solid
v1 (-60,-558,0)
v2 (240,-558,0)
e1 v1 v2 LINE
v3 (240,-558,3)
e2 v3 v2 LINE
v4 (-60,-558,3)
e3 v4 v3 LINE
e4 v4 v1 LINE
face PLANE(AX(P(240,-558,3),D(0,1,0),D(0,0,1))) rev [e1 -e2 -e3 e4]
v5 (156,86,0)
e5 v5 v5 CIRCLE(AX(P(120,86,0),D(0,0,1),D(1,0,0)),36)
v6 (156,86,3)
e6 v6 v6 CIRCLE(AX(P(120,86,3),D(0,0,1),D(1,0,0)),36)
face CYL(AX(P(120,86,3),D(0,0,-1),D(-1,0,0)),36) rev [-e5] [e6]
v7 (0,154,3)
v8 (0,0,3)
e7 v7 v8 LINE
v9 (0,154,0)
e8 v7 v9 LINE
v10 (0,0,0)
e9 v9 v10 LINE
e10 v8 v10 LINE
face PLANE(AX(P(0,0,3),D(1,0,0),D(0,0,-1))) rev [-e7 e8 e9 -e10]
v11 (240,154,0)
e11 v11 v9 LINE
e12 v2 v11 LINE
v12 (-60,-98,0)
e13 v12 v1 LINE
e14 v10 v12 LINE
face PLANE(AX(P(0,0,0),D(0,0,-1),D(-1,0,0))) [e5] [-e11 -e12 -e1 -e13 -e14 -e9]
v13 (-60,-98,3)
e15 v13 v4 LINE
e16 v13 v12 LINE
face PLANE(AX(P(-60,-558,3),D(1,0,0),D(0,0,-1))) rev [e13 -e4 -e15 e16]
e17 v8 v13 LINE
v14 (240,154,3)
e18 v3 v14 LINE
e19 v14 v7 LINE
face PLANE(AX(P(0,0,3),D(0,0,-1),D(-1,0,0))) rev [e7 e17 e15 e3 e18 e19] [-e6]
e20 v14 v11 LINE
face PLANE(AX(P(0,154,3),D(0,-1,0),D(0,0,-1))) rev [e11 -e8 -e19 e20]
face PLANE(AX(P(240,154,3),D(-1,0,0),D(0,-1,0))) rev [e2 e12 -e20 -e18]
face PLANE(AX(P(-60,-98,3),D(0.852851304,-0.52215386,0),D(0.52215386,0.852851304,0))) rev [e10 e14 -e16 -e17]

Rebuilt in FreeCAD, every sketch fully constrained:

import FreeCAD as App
import Part
import Sketcher


def add_polygon(sketch, points):
    """Adds a closed chain of lines whose ends are joined by coincident constraints."""
    first, n = sketch.GeometryCount, len(points)
    for a, b in zip(points, points[1:] + points[:1]):
        sketch.addGeometry(Part.LineSegment(App.Vector(*a, 0), App.Vector(*b, 0)), False)
    for i in range(n):
        sketch.addConstraint(Sketcher.Constraint("Coincident", first + i, 2, first + (i + 1) % n, 1))

doc = App.newDocument("Part")
body = doc.addObject("PartDesign::Body", "Body")

# Sketch on XY plane
sketch1 = body.newObject("Sketcher::SketchObject", "Sketch")
sketch1.AttachmentSupport = (doc.getObject("XY_Plane"), [""])
sketch1.MapMode = "FlatFace"
add_polygon(sketch1, [(0, 154), (0, 0), (-60, -98), (-60, -558), (240, -558), (240, 154)])  # lines 0-5
sketch1.addGeometry(Part.Circle(App.Vector(120, 86, 0), App.Vector(0, 0, 1), 36), False)  # 6
sketch1.addConstraint(Sketcher.Constraint("Vertical", 0))
sketch1.addConstraint(Sketcher.Constraint("Vertical", 2))
sketch1.addConstraint(Sketcher.Constraint("Horizontal", 3))
sketch1.addConstraint(Sketcher.Constraint("Vertical", 4))
sketch1.addConstraint(Sketcher.Constraint("Horizontal", 5))
sketch1.addConstraint(Sketcher.Constraint("Coincident", 0, 2, -1, 1))
sketch1.addConstraint(Sketcher.Constraint("Diameter", 6, 72.0))
sketch1.addConstraint(Sketcher.Constraint("DistanceX", 3, 1, 3, 2, 300.0))
sketch1.addConstraint(Sketcher.Constraint("DistanceX", 5, 2, 5, 1, 240.0))
sketch1.addConstraint(Sketcher.Constraint("DistanceY", 0, 2, 0, 1, 154.0))
sketch1.addConstraint(Sketcher.Constraint("DistanceY", 2, 2, 2, 1, 460.0))
sketch1.addConstraint(Sketcher.Constraint("DistanceY", 4, 1, 4, 2, 712.0))
sketch1.addConstraint(Sketcher.Constraint("DistanceX", -1, 1, 6, 3, 120.0))
sketch1.addConstraint(Sketcher.Constraint("DistanceY", -1, 1, 6, 3, 86.0))
pad1 = body.newObject("PartDesign::Pad", "Pad")
pad1.Profile = sketch1
pad1.Length = 3

doc.recompute()
